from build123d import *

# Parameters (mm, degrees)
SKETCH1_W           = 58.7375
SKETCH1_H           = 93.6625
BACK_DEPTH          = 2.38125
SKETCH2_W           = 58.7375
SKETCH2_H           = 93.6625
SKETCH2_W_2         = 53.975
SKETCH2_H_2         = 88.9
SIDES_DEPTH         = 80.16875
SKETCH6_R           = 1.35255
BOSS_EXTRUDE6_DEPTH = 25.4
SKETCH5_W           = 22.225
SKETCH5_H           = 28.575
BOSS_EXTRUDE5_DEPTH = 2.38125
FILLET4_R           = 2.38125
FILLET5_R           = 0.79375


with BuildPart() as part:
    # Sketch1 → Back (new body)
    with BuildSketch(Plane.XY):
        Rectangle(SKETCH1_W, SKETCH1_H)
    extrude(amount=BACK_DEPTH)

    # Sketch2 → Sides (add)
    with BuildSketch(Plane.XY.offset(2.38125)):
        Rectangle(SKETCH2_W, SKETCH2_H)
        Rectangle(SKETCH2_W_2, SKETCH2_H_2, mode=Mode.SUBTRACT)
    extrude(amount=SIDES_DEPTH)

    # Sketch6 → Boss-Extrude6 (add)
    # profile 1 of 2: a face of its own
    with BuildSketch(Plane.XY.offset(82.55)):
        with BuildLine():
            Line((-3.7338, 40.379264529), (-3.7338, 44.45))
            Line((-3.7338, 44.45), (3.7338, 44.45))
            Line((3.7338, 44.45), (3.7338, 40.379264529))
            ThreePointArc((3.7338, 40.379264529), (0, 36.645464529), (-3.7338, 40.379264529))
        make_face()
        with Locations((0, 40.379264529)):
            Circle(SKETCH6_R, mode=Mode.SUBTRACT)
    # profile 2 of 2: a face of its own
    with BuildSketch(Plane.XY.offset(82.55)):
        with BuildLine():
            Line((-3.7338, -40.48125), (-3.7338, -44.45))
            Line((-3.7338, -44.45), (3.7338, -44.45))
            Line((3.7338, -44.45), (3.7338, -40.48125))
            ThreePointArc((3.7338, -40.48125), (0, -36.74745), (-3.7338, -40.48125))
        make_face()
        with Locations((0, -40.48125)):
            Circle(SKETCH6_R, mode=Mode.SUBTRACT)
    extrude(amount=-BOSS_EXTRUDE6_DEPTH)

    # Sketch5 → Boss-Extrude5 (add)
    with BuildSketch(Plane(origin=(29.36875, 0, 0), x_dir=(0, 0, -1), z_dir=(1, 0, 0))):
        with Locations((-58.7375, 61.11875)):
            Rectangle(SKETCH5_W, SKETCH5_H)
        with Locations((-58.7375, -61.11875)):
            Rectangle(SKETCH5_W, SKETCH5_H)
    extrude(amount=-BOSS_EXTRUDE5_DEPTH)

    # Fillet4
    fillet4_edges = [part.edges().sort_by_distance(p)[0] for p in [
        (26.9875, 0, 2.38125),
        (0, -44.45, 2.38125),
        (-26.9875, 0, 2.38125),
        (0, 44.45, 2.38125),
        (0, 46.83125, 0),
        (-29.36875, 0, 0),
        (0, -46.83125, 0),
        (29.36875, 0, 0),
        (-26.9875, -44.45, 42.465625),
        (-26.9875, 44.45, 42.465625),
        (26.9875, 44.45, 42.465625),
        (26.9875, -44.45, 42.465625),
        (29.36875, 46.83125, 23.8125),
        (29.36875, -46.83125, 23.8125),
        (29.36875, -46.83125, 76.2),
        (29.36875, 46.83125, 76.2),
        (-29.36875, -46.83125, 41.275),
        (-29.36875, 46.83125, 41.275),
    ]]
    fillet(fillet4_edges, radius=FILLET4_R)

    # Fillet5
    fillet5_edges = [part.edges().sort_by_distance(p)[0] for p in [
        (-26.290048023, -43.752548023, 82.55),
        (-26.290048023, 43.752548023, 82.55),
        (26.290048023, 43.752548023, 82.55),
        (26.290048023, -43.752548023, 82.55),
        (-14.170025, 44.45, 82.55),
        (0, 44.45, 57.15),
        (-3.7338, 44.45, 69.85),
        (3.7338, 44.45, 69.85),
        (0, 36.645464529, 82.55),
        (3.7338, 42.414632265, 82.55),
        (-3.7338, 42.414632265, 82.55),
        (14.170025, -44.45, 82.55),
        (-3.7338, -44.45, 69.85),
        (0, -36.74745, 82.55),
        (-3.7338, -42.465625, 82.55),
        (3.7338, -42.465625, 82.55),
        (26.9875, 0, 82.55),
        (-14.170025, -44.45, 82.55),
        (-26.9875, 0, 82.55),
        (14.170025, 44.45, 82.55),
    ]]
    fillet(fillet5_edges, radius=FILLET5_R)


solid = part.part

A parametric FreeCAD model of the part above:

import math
import FreeCAD as App
import Part
import Sketcher
from FreeCAD import Vector
Q = App.Units.Quantity


def edges_at(feature, points):
    """Names of the edges that pass closest to the given points."""
    edges = feature.Shape.Edges
    near = lambda p: min(range(len(edges)), key=lambda i: edges[i].distToShape(Part.Vertex(*p))[0])
    return sorted({f"Edge{near(p) + 1}" for p in points})


def add_polygon(sketch, points):
    """Adds a closed chain of lines whose ends are joined by coincident constraints."""
    first, n = sketch.GeometryCount, len(points)
    for a, b in zip(points, points[1:] + points[:1]):
        sketch.addGeometry(Part.LineSegment(App.Vector(*a, 0), App.Vector(*b, 0)), False)
    for i in range(n):
        sketch.addConstraint(Sketcher.Constraint("Coincident", first + i, 2, first + (i + 1) % n, 1))

doc = App.newDocument("Part")
body = doc.addObject("PartDesign::Body", "Body")

sketch1 = body.newObject("Sketcher::SketchObject", "Sketch")
sketch1.AttachmentSupport = (doc.getObject("XY_Plane"), [""])
sketch1.MapMode = "FlatFace"
add_polygon(sketch1, [(-29, 47), (-29, -47), (29, -47), (29, 47)])
sketch1.addConstraint([
    Sketcher.Constraint("Vertical", 0),
    Sketcher.Constraint("Horizontal", 1),
    Sketcher.Constraint("Vertical", 2),
    Sketcher.Constraint("Horizontal", 3),
    Sketcher.Constraint("Symmetric", 0, 2, 2, 2, -1, 1),
    Sketcher.Constraint("DistanceX", 1, 1, 1, 2, Q("2.3125 in")),
    Sketcher.Constraint("DistanceY", 0, 2, 0, 1, Q("3.6875 in")),
])
pad1 = body.newObject("PartDesign::Pad", "Pad")
pad1.Profile = sketch1
pad1.Length = Q("0.09375 in")

sketch2 = body.newObject("Sketcher::SketchObject", "Sketch001")
sketch2.AttachmentSupport = (doc.getObject("XY_Plane"), [""])
sketch2.MapMode = "FlatFace"
sketch2.AttachmentOffset = App.Placement(Vector(0, 0, 0.09375 * 25.4), App.Rotation())
add_polygon(sketch2, [(-29, 47), (-29, -47), (29, -47), (29, 47)])
add_polygon(sketch2, [(27, -44), (-27, -44), (-27, 44), (27, 44)])
sketch2.addConstraint([
    Sketcher.Constraint("Vertical", 0),
    Sketcher.Constraint("Horizontal", 1),
    Sketcher.Constraint("Vertical", 2),
    Sketcher.Constraint("Horizontal", 3),
    Sketcher.Constraint("Horizontal", 4),
    Sketcher.Constraint("Vertical", 5),
    Sketcher.Constraint("Horizontal", 6),
    Sketcher.Constraint("Vertical", 7),
    Sketcher.Constraint("Symmetric", 0, 2, 2, 2, -1, 1),
    Sketcher.Constraint("Symmetric", 4, 2, 6, 2, -1, 1),
    Sketcher.Constraint("DistanceY", 5, 1, 5, 2, Q("3.5 in")),
    Sketcher.Constraint("DistanceX", 1, 1, 1, 2, Q("2.3125 in")),
    Sketcher.Constraint("DistanceX", 4, 2, 4, 1, Q("2.125 in")),
    Sketcher.Constraint("DistanceY", 0, 2, 0, 1, Q("3.6875 in")),
])
pad2 = body.newObject("PartDesign::Pad", "Pad001")
pad2.Profile = sketch2
pad2.Length = Q("3.15625 in")

sketch3 = body.newObject("Sketcher::SketchObject", "Sketch002")
sketch3.AttachmentSupport = (doc.getObject("XY_Plane"), [""])
sketch3.MapMode = "FlatFace"
sketch3.AttachmentOffset = App.Placement(Vector(0, 0, 3.25 * 25.4), App.Rotation())
sketch3.addGeometry([
    Part.LineSegment(Vector(-3.7, 44.5, 0), Vector(-3.7, 40.4, 0)),
    Part.ArcOfCircle(Part.Circle(Vector(0, 40.4, 0), Vector(0, 0, 1), 3.7), math.radians(180), math.radians(360)),
    Part.LineSegment(Vector(3.7, 40.4, 0), Vector(3.7, 44.5, 0)),
    Part.LineSegment(Vector(3.7, 44.5, 0), Vector(-3.7, 44.5, 0)),
    Part.Circle(Vector(0, 40.4, 0), Vector(0, 0, 1), 1.4),
    Part.LineSegment(Vector(-3.7, -40.5, 0), Vector(-3.7, -44.5, 0)),
    Part.LineSegment(Vector(-3.7, -44.5, 0), Vector(3.7, -44.5, 0)),
    Part.LineSegment(Vector(3.7, -44.5, 0), Vector(3.7, -40.5, 0)),
    Part.ArcOfCircle(Part.Circle(Vector(0, -40.5, 0), Vector(0, 0, 1), 3.7), math.radians(0), math.radians(180)),
    Part.Circle(Vector(0, -40.5, 0), Vector(0, 0, 1), 1.4),
], False)
sketch3.addConstraint([
    Sketcher.Constraint("Tangent", 0, 2, 1, 1),
    Sketcher.Constraint("Tangent", 1, 2, 2, 1),
    Sketcher.Constraint("Coincident", 2, 2, 3, 1),
    Sketcher.Constraint("Coincident", 3, 2, 0, 1),
    Sketcher.Constraint("Coincident", 5, 2, 6, 1),
    Sketcher.Constraint("Coincident", 6, 2, 7, 1),
    Sketcher.Constraint("Tangent", 7, 2, 8, 1),
    Sketcher.Constraint("Tangent", 8, 2, 5, 1),
    Sketcher.Constraint("Vertical", 0),
    Sketcher.Constraint("Vertical", 2),
    Sketcher.Constraint("Horizontal", 3),
    Sketcher.Constraint("Vertical", 5),
    Sketcher.Constraint("Horizontal", 6),
    Sketcher.Constraint("Vertical", 7),
    Sketcher.Constraint("Coincident", 4, 3, 1, 3),
    Sketcher.Constraint("Coincident", 9, 3, 8, 3),
    Sketcher.Constraint("Equal", 1, 8),
    Sketcher.Constraint("Equal", 4, 9),
    Sketcher.Constraint("Symmetric", 2, 2, 5, 2, -1, 1),
    Sketcher.Constraint("PointOnObject", 1, 3, -2),
    Sketcher.Constraint("Radius", 1, Q("0.147 in")),
    Sketcher.Constraint("Diameter", 4, Q("0.1065 in")),
    Sketcher.Constraint("DistanceY", 5, 2, 5, 1, Q("0.15625 in")),
    Sketcher.Constraint("DistanceY", -1, 1, 2, 2, Q("1.75 in")),
    Sketcher.Constraint("DistanceY", 0, 2, 0, 1, 4.070735),
])
pad3 = body.newObject("PartDesign::Pad", "Pad002")
pad3.Profile = sketch3
pad3.Length = Q("1 in")
pad3.Reversed = True

sketch4 = body.newObject("Sketcher::SketchObject", "Sketch003")
sketch4.AttachmentSupport = (doc.getObject("YZ_Plane"), [""])
sketch4.MapMode = "FlatFace"
sketch4.AttachmentOffset = App.Placement(Vector(0, 0, 1.15625 * 25.4), App.Rotation())
add_polygon(sketch4, [(75, 70), (47, 70), (47, 48), (75, 48)])
add_polygon(sketch4, [(-47, 70), (-75, 70), (-75, 48), (-47, 48)])
sketch4.addConstraint([
    Sketcher.Constraint("Horizontal", 0),
    Sketcher.Constraint("Vertical", 1),
    Sketcher.Constraint("Horizontal", 2),
    Sketcher.Constraint("Vertical", 3),
    Sketcher.Constraint("Horizontal", 4),
    Sketcher.Constraint("Vertical", 5),
    Sketcher.Constraint("Horizontal", 6),
    Sketcher.Constraint("Vertical", 7),
    Sketcher.Constraint("Symmetric", 3, 2, 4, 2, -2),
    Sketcher.Constraint("Symmetric", 1, 2, 6, 2, -2),
    Sketcher.Constraint("DistanceX", 0, 2, 0, 1, Q("1.125 in")),
    Sketcher.Constraint("DistanceY", 1, 2, 1, 1, Q("0.875 in")),
    Sketcher.Constraint("DistanceY", -1, 1, 0, 2, Q("2.75 in")),
    Sketcher.Constraint("DistanceX", -1, 1, 0, 2, Q("1.84375 in")),
])
pad4 = body.newObject("PartDesign::Pad", "Pad003")
pad4.Profile = sketch4
pad4.Length = Q("0.09375 in")
pad4.Reversed = True
doc.recompute()

fillet = body.newObject("PartDesign::Fillet", "Fillet")
fillet.Base = (pad4, edges_at(pad4, [
    (26.988, 0, 2.381),
    (0, -44.45, 2.381),
    (-26.988, 0, 2.381),
    (0, 44.45, 2.381),
    (0, 46.831, 0),
    (-29.369, 0, 0),
    (0, -46.831, 0),
    (29.369, 0, 0),
    (-26.988, -44.45, 42.466),
    (-26.988, 44.45, 42.466),
    (26.988, 44.45, 42.466),
    (26.988, -44.45, 42.466),
    (29.369, 46.831, 23.812),
    (29.369, -46.831, 23.812),
    (29.369, -46.831, 76.2),
    (29.369, 46.831, 76.2),
    (-29.369, -46.831, 41.275),
    (-29.369, 46.831, 41.275),
]))
fillet.Radius = Q("0.09375 in")
doc.recompute()

fillet2 = body.newObject("PartDesign::Fillet", "Fillet001")
fillet2.Base = (fillet, edges_at(fillet, [
    (-26.29, -43.753, 82.55),
    (-26.29, 43.753, 82.55),
    (26.29, 43.753, 82.55),
    (26.29, -43.753, 82.55),
    (-14.17, 44.45, 82.55),
    (0, 44.45, 57.15),
    (-3.734, 44.45, 69.85),
    (3.734, 44.45, 69.85),
    (0, 36.645, 82.55),
    (3.734, 42.415, 82.55),
    (-3.734, 42.415, 82.55),
    (14.17, -44.45, 82.55),
    (-3.734, -44.45, 69.85),
    (0, -36.747, 82.55),
    (-3.734, -42.466, 82.55),
    (3.734, -42.466, 82.55),
    (26.988, 0, 82.55),
    (-14.17, -44.45, 82.55),
    (-26.988, 0, 82.55),
    (14.17, 44.45, 82.55),
]))
fillet2.Radius = Q("0.03125 in")

doc.recompute()
